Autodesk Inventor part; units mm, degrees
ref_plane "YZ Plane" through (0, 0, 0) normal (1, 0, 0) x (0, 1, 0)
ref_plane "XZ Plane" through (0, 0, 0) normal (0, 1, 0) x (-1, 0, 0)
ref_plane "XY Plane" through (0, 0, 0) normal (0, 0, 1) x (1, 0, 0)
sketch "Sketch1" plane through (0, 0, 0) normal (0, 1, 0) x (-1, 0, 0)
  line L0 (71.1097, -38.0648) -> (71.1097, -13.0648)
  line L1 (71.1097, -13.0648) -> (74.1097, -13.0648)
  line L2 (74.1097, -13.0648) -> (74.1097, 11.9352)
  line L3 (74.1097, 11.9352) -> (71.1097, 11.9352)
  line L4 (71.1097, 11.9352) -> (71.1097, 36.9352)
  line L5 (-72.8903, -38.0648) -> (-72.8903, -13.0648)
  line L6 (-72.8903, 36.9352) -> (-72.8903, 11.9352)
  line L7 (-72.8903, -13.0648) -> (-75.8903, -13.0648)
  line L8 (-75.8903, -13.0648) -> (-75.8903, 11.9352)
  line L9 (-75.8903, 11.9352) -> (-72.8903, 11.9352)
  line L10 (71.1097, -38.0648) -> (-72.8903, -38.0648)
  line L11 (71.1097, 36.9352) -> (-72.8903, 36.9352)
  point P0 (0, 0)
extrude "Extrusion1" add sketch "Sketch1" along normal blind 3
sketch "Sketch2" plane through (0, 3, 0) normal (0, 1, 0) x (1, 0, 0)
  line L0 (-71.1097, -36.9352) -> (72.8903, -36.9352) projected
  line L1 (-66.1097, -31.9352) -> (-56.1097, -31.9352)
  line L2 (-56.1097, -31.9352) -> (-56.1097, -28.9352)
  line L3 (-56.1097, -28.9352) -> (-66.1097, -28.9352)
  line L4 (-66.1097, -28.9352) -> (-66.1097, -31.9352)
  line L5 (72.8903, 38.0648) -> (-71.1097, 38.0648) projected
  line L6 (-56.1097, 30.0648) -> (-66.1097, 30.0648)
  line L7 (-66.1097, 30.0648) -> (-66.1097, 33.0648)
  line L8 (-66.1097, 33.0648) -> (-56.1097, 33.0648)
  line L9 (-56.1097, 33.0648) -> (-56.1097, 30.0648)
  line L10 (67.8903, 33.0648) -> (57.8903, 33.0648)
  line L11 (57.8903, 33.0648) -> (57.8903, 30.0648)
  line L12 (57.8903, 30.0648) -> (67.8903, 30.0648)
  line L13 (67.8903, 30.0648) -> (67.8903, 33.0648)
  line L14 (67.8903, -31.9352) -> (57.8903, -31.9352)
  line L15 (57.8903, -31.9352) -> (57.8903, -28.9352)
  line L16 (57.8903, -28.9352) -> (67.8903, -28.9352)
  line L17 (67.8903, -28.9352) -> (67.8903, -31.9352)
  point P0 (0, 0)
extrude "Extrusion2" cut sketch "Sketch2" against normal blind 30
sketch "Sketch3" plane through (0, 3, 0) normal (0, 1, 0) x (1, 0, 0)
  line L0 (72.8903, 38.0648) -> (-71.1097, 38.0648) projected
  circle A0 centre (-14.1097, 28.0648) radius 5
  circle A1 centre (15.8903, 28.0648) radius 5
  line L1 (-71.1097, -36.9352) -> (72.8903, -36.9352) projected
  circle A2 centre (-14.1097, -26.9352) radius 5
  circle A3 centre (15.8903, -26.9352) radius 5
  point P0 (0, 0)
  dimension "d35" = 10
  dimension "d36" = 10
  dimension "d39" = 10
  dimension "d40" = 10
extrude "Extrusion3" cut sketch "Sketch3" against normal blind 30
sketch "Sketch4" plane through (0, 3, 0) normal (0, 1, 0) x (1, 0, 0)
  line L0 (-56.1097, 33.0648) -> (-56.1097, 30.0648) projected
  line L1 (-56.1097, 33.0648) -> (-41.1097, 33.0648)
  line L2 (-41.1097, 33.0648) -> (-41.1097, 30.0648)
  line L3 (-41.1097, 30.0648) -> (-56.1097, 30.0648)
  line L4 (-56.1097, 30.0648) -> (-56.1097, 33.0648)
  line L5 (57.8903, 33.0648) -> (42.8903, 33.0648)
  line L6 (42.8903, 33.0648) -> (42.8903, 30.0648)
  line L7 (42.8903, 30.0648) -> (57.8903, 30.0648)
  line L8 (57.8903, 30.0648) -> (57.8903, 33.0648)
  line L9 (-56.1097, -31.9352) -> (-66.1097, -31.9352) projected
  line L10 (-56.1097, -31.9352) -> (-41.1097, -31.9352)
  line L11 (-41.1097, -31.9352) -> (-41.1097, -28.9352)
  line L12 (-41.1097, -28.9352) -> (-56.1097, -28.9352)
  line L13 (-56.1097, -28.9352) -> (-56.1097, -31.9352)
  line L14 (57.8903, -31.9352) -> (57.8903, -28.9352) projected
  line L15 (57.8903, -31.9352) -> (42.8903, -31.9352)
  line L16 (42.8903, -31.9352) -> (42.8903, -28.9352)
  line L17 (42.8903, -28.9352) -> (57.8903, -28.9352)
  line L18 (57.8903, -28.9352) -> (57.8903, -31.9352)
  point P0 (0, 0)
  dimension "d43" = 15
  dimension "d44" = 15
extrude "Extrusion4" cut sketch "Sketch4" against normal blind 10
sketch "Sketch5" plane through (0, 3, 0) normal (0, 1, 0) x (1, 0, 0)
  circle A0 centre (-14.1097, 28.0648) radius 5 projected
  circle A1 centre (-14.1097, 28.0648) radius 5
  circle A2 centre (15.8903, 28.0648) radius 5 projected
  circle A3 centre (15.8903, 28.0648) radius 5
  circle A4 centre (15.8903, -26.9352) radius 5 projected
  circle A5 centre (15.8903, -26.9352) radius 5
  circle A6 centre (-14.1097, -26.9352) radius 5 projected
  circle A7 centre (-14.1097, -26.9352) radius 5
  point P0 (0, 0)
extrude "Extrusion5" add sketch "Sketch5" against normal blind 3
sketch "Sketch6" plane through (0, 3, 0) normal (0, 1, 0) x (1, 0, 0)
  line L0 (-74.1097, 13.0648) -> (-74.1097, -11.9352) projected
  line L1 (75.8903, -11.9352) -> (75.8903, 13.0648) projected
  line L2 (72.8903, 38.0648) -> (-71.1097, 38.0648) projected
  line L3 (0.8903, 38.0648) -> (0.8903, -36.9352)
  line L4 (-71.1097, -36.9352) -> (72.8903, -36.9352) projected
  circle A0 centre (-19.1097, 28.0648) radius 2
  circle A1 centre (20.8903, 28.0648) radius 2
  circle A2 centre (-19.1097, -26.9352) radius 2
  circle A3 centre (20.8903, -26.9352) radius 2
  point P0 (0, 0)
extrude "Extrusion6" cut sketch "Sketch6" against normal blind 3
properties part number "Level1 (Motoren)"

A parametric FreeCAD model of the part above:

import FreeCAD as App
import Part
import Sketcher
Q = App.Units.Quantity

doc = App.newDocument("Part")
body = doc.addObject("PartDesign::Body", "Body")

# Sketch on XZ plane
sketch1 = body.newObject("Sketcher::SketchObject", "Sketch")
sketch1.AttachmentSupport = (doc.getObject("XZ_Plane"), [""])
sketch1.MapMode = "FlatFace"
sketch1.addGeometry([
    Part.LineSegment(App.Vector(72.8903, -38.0648, 0), App.Vector(-71.1097, -38.0648, 0)),  # 0
    Part.LineSegment(App.Vector(-71.1097, -38.0648, 0), App.Vector(-71.1097, -13.0648, 0)),  # 1
    Part.LineSegment(App.Vector(-71.1097, -13.0648, 0), App.Vector(-74.1097, -13.0648, 0)),  # 2
    Part.LineSegment(App.Vector(-74.1097, -13.0648, 0), App.Vector(-74.1097, 11.9352, 0)),  # 3
    Part.LineSegment(App.Vector(-74.1097, 11.9352, 0), App.Vector(-71.1097, 11.9352, 0)),  # 4
    Part.LineSegment(App.Vector(-71.1097, 11.9352, 0), App.Vector(-71.1097, 36.9352, 0)),  # 5
    Part.LineSegment(App.Vector(-71.1097, 36.9352, 0), App.Vector(72.8903, 36.9352, 0)),  # 6
    Part.LineSegment(App.Vector(72.8903, 36.9352, 0), App.Vector(72.8903, 11.9352, 0)),  # 7
    Part.LineSegment(App.Vector(72.8903, 11.9352, 0), App.Vector(75.8903, 11.9352, 0)),  # 8
    Part.LineSegment(App.Vector(75.8903, 11.9352, 0), App.Vector(75.8903, -13.0648, 0)),  # 9
    Part.LineSegment(App.Vector(75.8903, -13.0648, 0), App.Vector(72.8903, -13.0648, 0)),  # 10
    Part.LineSegment(App.Vector(72.8903, -13.0648, 0), App.Vector(72.8903, -38.0648, 0)),  # 11
], False)
sketch1.addConstraint([
    Sketcher.Constraint("Coincident", 0, 2, 1, 1),
    Sketcher.Constraint("Coincident", 1, 2, 2, 1),
    Sketcher.Constraint("Coincident", 2, 2, 3, 1),
    Sketcher.Constraint("Coincident", 3, 2, 4, 1),
    Sketcher.Constraint("Coincident", 4, 2, 5, 1),
    Sketcher.Constraint("Coincident", 5, 2, 6, 1),
    Sketcher.Constraint("Coincident", 6, 2, 7, 1),
    Sketcher.Constraint("Coincident", 7, 2, 8, 1),
    Sketcher.Constraint("Coincident", 8, 2, 9, 1),
    Sketcher.Constraint("Coincident", 9, 2, 10, 1),
    Sketcher.Constraint("Coincident", 10, 2, 11, 1),
    Sketcher.Constraint("Coincident", 11, 2, 0, 1),
    Sketcher.Constraint("Horizontal", 0),
    Sketcher.Constraint("Vertical", 1),
    Sketcher.Constraint("Horizontal", 2),
    Sketcher.Constraint("Vertical", 3),
    Sketcher.Constraint("Horizontal", 4),
    Sketcher.Constraint("Vertical", 5),
    Sketcher.Constraint("Horizontal", 6),
    Sketcher.Constraint("Vertical", 7),
    Sketcher.Constraint("Horizontal", 8),
    Sketcher.Constraint("Vertical", 9),
    Sketcher.Constraint("Horizontal", 10),
    Sketcher.Constraint("Vertical", 11),
    Sketcher.Constraint("Horizontal", 4, 2, 7, 2),
    Sketcher.Constraint("Horizontal", 2, 2, 9, 2),
    Sketcher.Constraint("Vertical", 1, 2, 4, 2),
    Sketcher.Constraint("Vertical", 7, 2, 10, 2),
    Sketcher.Constraint("Equal", 4, 8),
    Sketcher.Constraint("Equal", 1, 3),
    Sketcher.Constraint("Equal", 3, 5),
    Sketcher.Constraint("DistanceX", 0, 2, 0, 1, Q("144 mm")),
    Sketcher.Constraint("DistanceX", 2, 2, 2, 1, Q("3 mm")),
    Sketcher.Constraint("DistanceY", 1, 1, 1, 2, Q("25 mm")),
    Sketcher.Constraint("DistanceX", 0, 2, -1, 1, Q("71.1097 mm")),
    Sketcher.Constraint("DistanceY", 0, 2, -1, 1, Q("38.0648 mm")),
])
pad1 = body.newObject("PartDesign::Pad", "Pad")
pad1.Profile = sketch1
pad1.Length = 3
pad1.Reversed = True

# Sketch on XZ plane
sketch2 = body.newObject("Sketcher::SketchObject", "Sketch001")
sketch2.AttachmentSupport = (doc.getObject("XZ_Plane"), [""])
sketch2.MapMode = "FlatFace"
sketch2.AttachmentOffset = App.Placement(App.Vector(0, 0, -3), App.Rotation())
sketch2.addGeometry([
    Part.LineSegment(App.Vector(-66.1097, 28.9352, 0), App.Vector(-66.1097, 31.9352, 0)),  # 0
    Part.LineSegment(App.Vector(-66.1097, 31.9352, 0), App.Vector(-56.1097, 31.9352, 0)),  # 1
    Part.LineSegment(App.Vector(-56.1097, 31.9352, 0), App.Vector(-56.1097, 28.9352, 0)),  # 2
    Part.LineSegment(App.Vector(-56.1097, 28.9352, 0), App.Vector(-66.1097, 28.9352, 0)),  # 3
    Part.LineSegment(App.Vector(-66.1097, -30.0648, 0), App.Vector(-56.1097, -30.0648, 0)),  # 4
    Part.LineSegment(App.Vector(-56.1097, -30.0648, 0), App.Vector(-56.1097, -33.0648, 0)),  # 5
    Part.LineSegment(App.Vector(-56.1097, -33.0648, 0), App.Vector(-66.1097, -33.0648, 0)),  # 6
    Part.LineSegment(App.Vector(-66.1097, -33.0648, 0), App.Vector(-66.1097, -30.0648, 0)),  # 7
    Part.LineSegment(App.Vector(67.8903, -30.0648, 0), App.Vector(67.8903, -33.0648, 0)),  # 8
    Part.LineSegment(App.Vector(67.8903, -33.0648, 0), App.Vector(57.8903, -33.0648, 0)),  # 9
    Part.LineSegment(App.Vector(57.8903, -33.0648, 0), App.Vector(57.8903, -30.0648, 0)),  # 10
    Part.LineSegment(App.Vector(57.8903, -30.0648, 0), App.Vector(67.8903, -30.0648, 0)),  # 11
    Part.LineSegment(App.Vector(57.8903, 31.9352, 0), App.Vector(67.8903, 31.9352, 0)),  # 12
    Part.LineSegment(App.Vector(67.8903, 31.9352, 0), App.Vector(67.8903, 28.9352, 0)),  # 13
    Part.LineSegment(App.Vector(67.8903, 28.9352, 0), App.Vector(57.8903, 28.9352, 0)),  # 14
    Part.LineSegment(App.Vector(57.8903, 28.9352, 0), App.Vector(57.8903, 31.9352, 0)),  # 15
], False)
sketch2.addConstraint([
    Sketcher.Constraint("Coincident", 0, 2, 1, 1),
    Sketcher.Constraint("Coincident", 1, 2, 2, 1),
    Sketcher.Constraint("Coincident", 2, 2, 3, 1),
    Sketcher.Constraint("Coincident", 3, 2, 0, 1),
    Sketcher.Constraint("Coincident", 4, 2, 5, 1),
    Sketcher.Constraint("Coincident", 5, 2, 6, 1),
    Sketcher.Constraint("Coincident", 6, 2, 7, 1),
    Sketcher.Constraint("Coincident", 7, 2, 4, 1),
    Sketcher.Constraint("Coincident", 8, 2, 9, 1),
    Sketcher.Constraint("Coincident", 9, 2, 10, 1),
    Sketcher.Constraint("Coincident", 10, 2, 11, 1),
    Sketcher.Constraint("Coincident", 11, 2, 8, 1),
    Sketcher.Constraint("Coincident", 12, 2, 13, 1),
    Sketcher.Constraint("Coincident", 13, 2, 14, 1),
    Sketcher.Constraint("Coincident", 14, 2, 15, 1),
    Sketcher.Constraint("Coincident", 15, 2, 12, 1),
    Sketcher.Constraint("Vertical", 0),
    Sketcher.Constraint("Horizontal", 1),
    Sketcher.Constraint("Vertical", 2),
    Sketcher.Constraint("Horizontal", 3),
    Sketcher.Constraint("Horizontal", 4),
    Sketcher.Constraint("Vertical", 5),
    Sketcher.Constraint("Horizontal", 6),
    Sketcher.Constraint("Vertical", 7),
    Sketcher.Constraint("Vertical", 8),
    Sketcher.Constraint("Horizontal", 9),
    Sketcher.Constraint("Vertical", 10),
    Sketcher.Constraint("Horizontal", 11),
    Sketcher.Constraint("Horizontal", 12),
    Sketcher.Constraint("Vertical", 13),
    Sketcher.Constraint("Horizontal", 14),
    Sketcher.Constraint("Vertical", 15),
    Sketcher.Constraint("Horizontal", 6, 2, 8, 2),
    Sketcher.Constraint("Horizontal", 7, 2, 10, 2),
    Sketcher.Constraint("Horizontal", 1, 2, 12, 2),
    Sketcher.Constraint("Horizontal", 3, 2, 13, 2),
    Sketcher.Constraint("Vertical", 2, 2, 4, 2),
    Sketcher.Constraint("Vertical", 3, 2, 6, 2),
    Sketcher.Constraint("Vertical", 11, 2, 12, 2),
    Sketcher.Constraint("Vertical", 10, 2, 14, 2),
    Sketcher.Constraint("Equal", 6, 9),
    Sketcher.Constraint("Equal", 2, 5),
    Sketcher.Constraint("DistanceX", 1, 1, 1, 2, Q("10 mm")),
    Sketcher.Constraint("DistanceY", 0, 1, 0, 2, Q("3 mm")),
    Sketcher.Constraint("DistanceY", 4, 2, 2, 2, Q("59 mm")),
    Sketcher.Constraint("DistanceX", 5, 2, 8, 2, Q("124 mm")),
    Sketcher.Constraint("DistanceX", 0, 2, -1, 1, Q("66.1097 mm")),
    Sketcher.Constraint("DistanceY", -1, 1, 0, 2, Q("31.9352 mm")),
])
pocket1 = body.newObject("PartDesign::Pocket", "Pocket")
pocket1.Profile = sketch2
pocket1.Length = 30
pocket1.Reversed = True

# Sketch on XZ plane
sketch3 = body.newObject("Sketcher::SketchObject", "Sketch002")
sketch3.AttachmentSupport = (doc.getObject("XZ_Plane"), [""])
sketch3.MapMode = "FlatFace"
sketch3.AttachmentOffset = App.Placement(App.Vector(0, 0, -3), App.Rotation())
sketch3.addGeometry([
    Part.Circle(App.Vector(-14.1097, -28.0648, 0), App.Vector(0, 0, 1), 5),
    Part.Circle(App.Vector(15.8903, -28.0648, 0), App.Vector(0, 0, 1), 5),
    Part.Circle(App.Vector(-14.1097, 26.9352, 0), App.Vector(0, 0, 1), 5),
    Part.Circle(App.Vector(15.8903, 26.9352, 0), App.Vector(0, 0, 1), 5),
], False)
sketch3.addConstraint([
    Sketcher.Constraint("Equal", 0, 1),
    Sketcher.Constraint("Equal", 1, 2),
    Sketcher.Constraint("Equal", 2, 3),
    Sketcher.Constraint("Horizontal", 0, 3, 1, 3),
    Sketcher.Constraint("Horizontal", 2, 3, 3, 3),
    Sketcher.Constraint("Vertical", 0, 3, 2, 3),
    Sketcher.Constraint("Vertical", 1, 3, 3, 3),
    Sketcher.Constraint("Diameter", 0, Q("10 mm")),
    Sketcher.Constraint("DistanceX", 0, 3, 1, 3, Q("30 mm")),
    Sketcher.Constraint("DistanceY", 0, 3, 2, 3, Q("55 mm")),
    Sketcher.Constraint("DistanceX", 0, 3, -1, 1, Q("14.1097 mm")),
    Sketcher.Constraint("DistanceY", 0, 3, -1, 1, Q("28.0648 mm")),
])
pocket2 = body.newObject("PartDesign::Pocket", "Pocket001")
pocket2.Profile = sketch3
pocket2.Length = 30
pocket2.Reversed = True

# Sketch on XZ plane
sketch4 = body.newObject("Sketcher::SketchObject", "Sketch003")
sketch4.AttachmentSupport = (doc.getObject("XZ_Plane"), [""])
sketch4.MapMode = "FlatFace"
sketch4.AttachmentOffset = App.Placement(App.Vector(0, 0, -3), App.Rotation())
sketch4.addGeometry([
    Part.LineSegment(App.Vector(-41.1097, -33.0648, 0), App.Vector(-56.1097, -33.0648, 0)),  # 0
    Part.LineSegment(App.Vector(-56.1097, -33.0648, 0), App.Vector(-56.1097, -30.0648, 0)),  # 1
    Part.LineSegment(App.Vector(-56.1097, -30.0648, 0), App.Vector(-41.1097, -30.0648, 0)),  # 2
    Part.LineSegment(App.Vector(-41.1097, -30.0648, 0), App.Vector(-41.1097, -33.0648, 0)),  # 3
    Part.LineSegment(App.Vector(57.8903, -30.0648, 0), App.Vector(57.8903, -33.0648, 0)),  # 4
    Part.LineSegment(App.Vector(57.8903, -33.0648, 0), App.Vector(42.8903, -33.0648, 0)),  # 5
    Part.LineSegment(App.Vector(42.8903, -33.0648, 0), App.Vector(42.8903, -30.0648, 0)),  # 6
    Part.LineSegment(App.Vector(42.8903, -30.0648, 0), App.Vector(57.8903, -30.0648, 0)),  # 7
    Part.LineSegment(App.Vector(-56.1097, 28.9352, 0), App.Vector(-56.1097, 31.9352, 0)),  # 8
    Part.LineSegment(App.Vector(-56.1097, 31.9352, 0), App.Vector(-41.1097, 31.9352, 0)),  # 9
    Part.LineSegment(App.Vector(-41.1097, 31.9352, 0), App.Vector(-41.1097, 28.9352, 0)),  # 10
    Part.LineSegment(App.Vector(-41.1097, 28.9352, 0), App.Vector(-56.1097, 28.9352, 0)),  # 11
    Part.LineSegment(App.Vector(42.8903, 31.9352, 0), App.Vector(57.8903, 31.9352, 0)),  # 12
    Part.LineSegment(App.Vector(57.8903, 31.9352, 0), App.Vector(57.8903, 28.9352, 0)),  # 13
    Part.LineSegment(App.Vector(57.8903, 28.9352, 0), App.Vector(42.8903, 28.9352, 0)),  # 14
    Part.LineSegment(App.Vector(42.8903, 28.9352, 0), App.Vector(42.8903, 31.9352, 0)),  # 15
], False)
sketch4.addConstraint([
    Sketcher.Constraint("Coincident", 0, 2, 1, 1),
    Sketcher.Constraint("Coincident", 1, 2, 2, 1),
    Sketcher.Constraint("Coincident", 2, 2, 3, 1),
    Sketcher.Constraint("Coincident", 3, 2, 0, 1),
    Sketcher.Constraint("Coincident", 4, 2, 5, 1),
    Sketcher.Constraint("Coincident", 5, 2, 6, 1),
    Sketcher.Constraint("Coincident", 6, 2, 7, 1),
    Sketcher.Constraint("Coincident", 7, 2, 4, 1),
    Sketcher.Constraint("Coincident", 8, 2, 9, 1),
    Sketcher.Constraint("Coincident", 9, 2, 10, 1),
    Sketcher.Constraint("Coincident", 10, 2, 11, 1),
    Sketcher.Constraint("Coincident", 11, 2, 8, 1),
    Sketcher.Constraint("Coincident", 12, 2, 13, 1),
    Sketcher.Constraint("Coincident", 13, 2, 14, 1),
    Sketcher.Constraint("Coincident", 14, 2, 15, 1),
    Sketcher.Constraint("Coincident", 15, 2, 12, 1),
    Sketcher.Constraint("Horizontal", 0),
    Sketcher.Constraint("Vertical", 1),
    Sketcher.Constraint("Horizontal", 2),
    Sketcher.Constraint("Vertical", 3),
    Sketcher.Constraint("Vertical", 4),
    Sketcher.Constraint("Horizontal", 5),
    Sketcher.Constraint("Vertical", 6),
    Sketcher.Constraint("Horizontal", 7),
    Sketcher.Constraint("Vertical", 8),
    Sketcher.Constraint("Horizontal", 9),
    Sketcher.Constraint("Vertical", 10),
    Sketcher.Constraint("Horizontal", 11),
    Sketcher.Constraint("Horizontal", 12),
    Sketcher.Constraint("Vertical", 13),
    Sketcher.Constraint("Horizontal", 14),
    Sketcher.Constraint("Vertical", 15),
    Sketcher.Constraint("Horizontal", 3, 2, 4, 2),
    Sketcher.Constraint("Horizontal", 2, 2, 6, 2),
    Sketcher.Constraint("Horizontal", 9, 2, 12, 2),
    Sketcher.Constraint("Horizontal", 11, 2, 13, 2),
    Sketcher.Constraint("Vertical", 1, 2, 8, 2),
    Sketcher.Constraint("Vertical", 3, 2, 9, 2),
    Sketcher.Constraint("Vertical", 7, 2, 12, 2),
    Sketcher.Constraint("Vertical", 6, 2, 14, 2),
    Sketcher.Constraint("Equal", 2, 5),
    Sketcher.Constraint("Equal", 6, 8),
    Sketcher.Constraint("DistanceX", 0, 2, 0, 1, Q("15 mm")),
    Sketcher.Constraint("DistanceY", 1, 1, 1, 2, Q("3 mm")),
    Sketcher.Constraint("DistanceX", 3, 2, 4, 2, Q("99 mm")),
    Sketcher.Constraint("DistanceY", 1, 2, 8, 2, Q("62 mm")),
    Sketcher.Constraint("DistanceX", 0, 2, -1, 1, Q("56.1097 mm")),
    Sketcher.Constraint("DistanceY", 0, 2, -1, 1, Q("33.0648 mm")),
])
pocket3 = body.newObject("PartDesign::Pocket", "Pocket002")
pocket3.Profile = sketch4
pocket3.Length = 10
pocket3.Reversed = True

# Sketch on XZ plane
sketch5 = body.newObject("Sketcher::SketchObject", "Sketch004")
sketch5.AttachmentSupport = (doc.getObject("XZ_Plane"), [""])
sketch5.MapMode = "FlatFace"
sketch5.AttachmentOffset = App.Placement(App.Vector(0, 0, -3), App.Rotation())
sketch5.addGeometry([
    Part.Circle(App.Vector(-14.1097, -28.0648, 0), App.Vector(0, 0, 1), 5),
    Part.Circle(App.Vector(15.8903, -28.0648, 0), App.Vector(0, 0, 1), 5),
    Part.Circle(App.Vector(15.8903, 26.9352, 0), App.Vector(0, 0, 1), 5),
    Part.Circle(App.Vector(-14.1097, 26.9352, 0), App.Vector(0, 0, 1), 5),
], False)
sketch5.addConstraint([
    Sketcher.Constraint("Equal", 0, 1),
    Sketcher.Constraint("Equal", 1, 2),
    Sketcher.Constraint("Equal", 2, 3),
    Sketcher.Constraint("Horizontal", 0, 3, 1, 3),
    Sketcher.Constraint("Horizontal", 2, 3, 3, 3),
    Sketcher.Constraint("Vertical", 1, 3, 2, 3),
    Sketcher.Constraint("Vertical", 0, 3, 3, 3),
    Sketcher.Constraint("Diameter", 0, Q("10 mm")),
    Sketcher.Constraint("DistanceX", 0, 3, 1, 3, Q("30 mm")),
    Sketcher.Constraint("DistanceY", 1, 3, 2, 3, Q("55 mm")),
    Sketcher.Constraint("DistanceX", 0, 3, -1, 1, Q("14.1097 mm")),
    Sketcher.Constraint("DistanceY", 0, 3, -1, 1, Q("28.0648 mm")),
])
pad2 = body.newObject("PartDesign::Pad", "Pad001")
pad2.Profile = sketch5
pad2.Length = 3

# Sketch on XZ plane
sketch6 = body.newObject("Sketcher::SketchObject", "Sketch005")
sketch6.AttachmentSupport = (doc.getObject("XZ_Plane"), [""])
sketch6.MapMode = "FlatFace"
sketch6.AttachmentOffset = App.Placement(App.Vector(0, 0, -3), App.Rotation())
sketch6.addGeometry([
    Part.Circle(App.Vector(-19.1097, -28.0648, 0), App.Vector(0, 0, 1), 2),
    Part.Circle(App.Vector(20.8903, -28.0648, 0), App.Vector(0, 0, 1), 2),
    Part.Circle(App.Vector(-19.1097, 26.9352, 0), App.Vector(0, 0, 1), 2),
    Part.Circle(App.Vector(20.8903, 26.9352, 0), App.Vector(0, 0, 1), 2),
], False)
sketch6.addConstraint([
    Sketcher.Constraint("Equal", 0, 1),
    Sketcher.Constraint("Equal", 1, 2),
    Sketcher.Constraint("Equal", 2, 3),
    Sketcher.Constraint("Horizontal", 0, 3, 1, 3),
    Sketcher.Constraint("Horizontal", 2, 3, 3, 3),
    Sketcher.Constraint("Vertical", 0, 3, 2, 3),
    Sketcher.Constraint("Vertical", 1, 3, 3, 3),
    Sketcher.Constraint("Diameter", 0, Q("4 mm")),
    Sketcher.Constraint("DistanceX", 0, 3, 1, 3, Q("40 mm")),
    Sketcher.Constraint("DistanceY", 0, 3, 2, 3, Q("55 mm")),
    Sketcher.Constraint("DistanceX", 0, 3, -1, 1, Q("19.1097 mm")),
    Sketcher.Constraint("DistanceY", 0, 3, -1, 1, Q("28.0648 mm")),
])
pocket4 = body.newObject("PartDesign::Pocket", "Pocket003")
pocket4.Profile = sketch6
pocket4.Length = 3
pocket4.Reversed = True

doc.recompute()
